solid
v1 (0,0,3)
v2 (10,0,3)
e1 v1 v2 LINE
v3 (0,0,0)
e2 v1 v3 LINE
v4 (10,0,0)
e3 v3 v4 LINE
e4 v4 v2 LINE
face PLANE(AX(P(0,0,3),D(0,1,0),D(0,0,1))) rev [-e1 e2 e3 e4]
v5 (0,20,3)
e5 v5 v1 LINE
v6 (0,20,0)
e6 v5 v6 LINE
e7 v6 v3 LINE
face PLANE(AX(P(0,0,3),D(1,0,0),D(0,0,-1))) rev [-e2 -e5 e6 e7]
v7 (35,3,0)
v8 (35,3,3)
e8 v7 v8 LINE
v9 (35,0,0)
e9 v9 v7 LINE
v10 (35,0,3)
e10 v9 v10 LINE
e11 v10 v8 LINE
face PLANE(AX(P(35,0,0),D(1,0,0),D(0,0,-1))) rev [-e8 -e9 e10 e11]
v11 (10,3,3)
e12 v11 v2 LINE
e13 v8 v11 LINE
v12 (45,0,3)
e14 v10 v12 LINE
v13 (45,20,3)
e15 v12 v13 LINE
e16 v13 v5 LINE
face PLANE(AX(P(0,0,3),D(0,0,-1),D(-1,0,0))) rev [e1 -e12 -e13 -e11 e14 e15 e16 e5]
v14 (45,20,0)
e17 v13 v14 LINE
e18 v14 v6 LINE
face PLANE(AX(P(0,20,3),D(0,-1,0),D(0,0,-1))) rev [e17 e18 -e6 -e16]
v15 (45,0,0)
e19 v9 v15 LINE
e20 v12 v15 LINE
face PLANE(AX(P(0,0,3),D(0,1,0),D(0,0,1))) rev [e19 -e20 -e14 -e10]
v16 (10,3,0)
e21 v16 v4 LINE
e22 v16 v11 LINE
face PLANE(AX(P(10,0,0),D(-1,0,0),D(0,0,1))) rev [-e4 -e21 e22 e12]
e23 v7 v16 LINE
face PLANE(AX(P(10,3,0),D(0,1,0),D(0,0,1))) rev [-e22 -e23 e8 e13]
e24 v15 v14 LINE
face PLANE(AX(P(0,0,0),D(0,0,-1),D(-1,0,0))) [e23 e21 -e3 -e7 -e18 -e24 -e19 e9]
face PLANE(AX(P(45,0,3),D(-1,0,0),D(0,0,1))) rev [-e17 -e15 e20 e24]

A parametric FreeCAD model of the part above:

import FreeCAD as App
import Part
import Sketcher
Q = App.Units.Quantity


def add_polygon(sketch, points):
    """Adds a closed chain of lines whose ends are joined by coincident constraints."""
    first, n = sketch.GeometryCount, len(points)
    for a, b in zip(points, points[1:] + points[:1]):
        sketch.addGeometry(Part.LineSegment(App.Vector(*a, 0), App.Vector(*b, 0)), False)
    for i in range(n):
        sketch.addConstraint(Sketcher.Constraint("Coincident", first + i, 2, first + (i + 1) % n, 1))

doc = App.newDocument("Part")
body = doc.addObject("PartDesign::Body", "Body")

# Sketch on XY plane
sketch1 = doc.addObject("Sketcher::SketchObject", "Sketch")
body.addObject(sketch1)
sketch1.AttachmentSupport = (doc.XY_Plane, [""])
sketch1.MapMode = "FlatFace"
add_polygon(sketch1, [(0, 20), (0, 0), (45, 0), (45, 20)])  # lines 0-3
sketch1.addConstraint([
    Sketcher.Constraint("Vertical", 0),
    Sketcher.Constraint("Horizontal", 1),
    Sketcher.Constraint("Vertical", 2),
    Sketcher.Constraint("Horizontal", 3),
    Sketcher.Constraint("Coincident", 0, 2, -1, 1),
    Sketcher.Constraint("DistanceX", 1, 1, 1, 2, Q("45 mm")),
    Sketcher.Constraint("DistanceY", 0, 2, 0, 1, Q("20 mm")),
])
pad1 = doc.addObject("PartDesign::Pad", "Pad")
body.addObject(pad1)
pad1.Profile = sketch1
pad1.Length = 3

# Sketch on XY plane
sketch2 = doc.addObject("Sketcher::SketchObject", "Sketch001")
body.addObject(sketch2)
sketch2.AttachmentSupport = (doc.XY_Plane, [""])
sketch2.MapMode = "FlatFace"
sketch2.AttachmentOffset = App.Placement(App.Vector(0, 0, 3), App.Rotation())
add_polygon(sketch2, [(10, 3), (10, 0), (35, 0), (35, 3)])  # lines 0-3
sketch2.addConstraint([
    Sketcher.Constraint("Vertical", 0),
    Sketcher.Constraint("Horizontal", 1),
    Sketcher.Constraint("Vertical", 2),
    Sketcher.Constraint("Horizontal", 3),
    Sketcher.Constraint("PointOnObject", 0, 2, -1),
    Sketcher.Constraint("DistanceX", 1, 1, 1, 2, Q("25 mm")),
    Sketcher.Constraint("DistanceY", 0, 2, 0, 1, Q("3 mm")),
    Sketcher.Constraint("DistanceX", -1, 1, 0, 2, Q("10 mm")),
])
pocket1 = doc.addObject("PartDesign::Pocket", "Pocket")
body.addObject(pocket1)
pocket1.Profile = sketch2
pocket1.Length = 3

doc.recompute()
